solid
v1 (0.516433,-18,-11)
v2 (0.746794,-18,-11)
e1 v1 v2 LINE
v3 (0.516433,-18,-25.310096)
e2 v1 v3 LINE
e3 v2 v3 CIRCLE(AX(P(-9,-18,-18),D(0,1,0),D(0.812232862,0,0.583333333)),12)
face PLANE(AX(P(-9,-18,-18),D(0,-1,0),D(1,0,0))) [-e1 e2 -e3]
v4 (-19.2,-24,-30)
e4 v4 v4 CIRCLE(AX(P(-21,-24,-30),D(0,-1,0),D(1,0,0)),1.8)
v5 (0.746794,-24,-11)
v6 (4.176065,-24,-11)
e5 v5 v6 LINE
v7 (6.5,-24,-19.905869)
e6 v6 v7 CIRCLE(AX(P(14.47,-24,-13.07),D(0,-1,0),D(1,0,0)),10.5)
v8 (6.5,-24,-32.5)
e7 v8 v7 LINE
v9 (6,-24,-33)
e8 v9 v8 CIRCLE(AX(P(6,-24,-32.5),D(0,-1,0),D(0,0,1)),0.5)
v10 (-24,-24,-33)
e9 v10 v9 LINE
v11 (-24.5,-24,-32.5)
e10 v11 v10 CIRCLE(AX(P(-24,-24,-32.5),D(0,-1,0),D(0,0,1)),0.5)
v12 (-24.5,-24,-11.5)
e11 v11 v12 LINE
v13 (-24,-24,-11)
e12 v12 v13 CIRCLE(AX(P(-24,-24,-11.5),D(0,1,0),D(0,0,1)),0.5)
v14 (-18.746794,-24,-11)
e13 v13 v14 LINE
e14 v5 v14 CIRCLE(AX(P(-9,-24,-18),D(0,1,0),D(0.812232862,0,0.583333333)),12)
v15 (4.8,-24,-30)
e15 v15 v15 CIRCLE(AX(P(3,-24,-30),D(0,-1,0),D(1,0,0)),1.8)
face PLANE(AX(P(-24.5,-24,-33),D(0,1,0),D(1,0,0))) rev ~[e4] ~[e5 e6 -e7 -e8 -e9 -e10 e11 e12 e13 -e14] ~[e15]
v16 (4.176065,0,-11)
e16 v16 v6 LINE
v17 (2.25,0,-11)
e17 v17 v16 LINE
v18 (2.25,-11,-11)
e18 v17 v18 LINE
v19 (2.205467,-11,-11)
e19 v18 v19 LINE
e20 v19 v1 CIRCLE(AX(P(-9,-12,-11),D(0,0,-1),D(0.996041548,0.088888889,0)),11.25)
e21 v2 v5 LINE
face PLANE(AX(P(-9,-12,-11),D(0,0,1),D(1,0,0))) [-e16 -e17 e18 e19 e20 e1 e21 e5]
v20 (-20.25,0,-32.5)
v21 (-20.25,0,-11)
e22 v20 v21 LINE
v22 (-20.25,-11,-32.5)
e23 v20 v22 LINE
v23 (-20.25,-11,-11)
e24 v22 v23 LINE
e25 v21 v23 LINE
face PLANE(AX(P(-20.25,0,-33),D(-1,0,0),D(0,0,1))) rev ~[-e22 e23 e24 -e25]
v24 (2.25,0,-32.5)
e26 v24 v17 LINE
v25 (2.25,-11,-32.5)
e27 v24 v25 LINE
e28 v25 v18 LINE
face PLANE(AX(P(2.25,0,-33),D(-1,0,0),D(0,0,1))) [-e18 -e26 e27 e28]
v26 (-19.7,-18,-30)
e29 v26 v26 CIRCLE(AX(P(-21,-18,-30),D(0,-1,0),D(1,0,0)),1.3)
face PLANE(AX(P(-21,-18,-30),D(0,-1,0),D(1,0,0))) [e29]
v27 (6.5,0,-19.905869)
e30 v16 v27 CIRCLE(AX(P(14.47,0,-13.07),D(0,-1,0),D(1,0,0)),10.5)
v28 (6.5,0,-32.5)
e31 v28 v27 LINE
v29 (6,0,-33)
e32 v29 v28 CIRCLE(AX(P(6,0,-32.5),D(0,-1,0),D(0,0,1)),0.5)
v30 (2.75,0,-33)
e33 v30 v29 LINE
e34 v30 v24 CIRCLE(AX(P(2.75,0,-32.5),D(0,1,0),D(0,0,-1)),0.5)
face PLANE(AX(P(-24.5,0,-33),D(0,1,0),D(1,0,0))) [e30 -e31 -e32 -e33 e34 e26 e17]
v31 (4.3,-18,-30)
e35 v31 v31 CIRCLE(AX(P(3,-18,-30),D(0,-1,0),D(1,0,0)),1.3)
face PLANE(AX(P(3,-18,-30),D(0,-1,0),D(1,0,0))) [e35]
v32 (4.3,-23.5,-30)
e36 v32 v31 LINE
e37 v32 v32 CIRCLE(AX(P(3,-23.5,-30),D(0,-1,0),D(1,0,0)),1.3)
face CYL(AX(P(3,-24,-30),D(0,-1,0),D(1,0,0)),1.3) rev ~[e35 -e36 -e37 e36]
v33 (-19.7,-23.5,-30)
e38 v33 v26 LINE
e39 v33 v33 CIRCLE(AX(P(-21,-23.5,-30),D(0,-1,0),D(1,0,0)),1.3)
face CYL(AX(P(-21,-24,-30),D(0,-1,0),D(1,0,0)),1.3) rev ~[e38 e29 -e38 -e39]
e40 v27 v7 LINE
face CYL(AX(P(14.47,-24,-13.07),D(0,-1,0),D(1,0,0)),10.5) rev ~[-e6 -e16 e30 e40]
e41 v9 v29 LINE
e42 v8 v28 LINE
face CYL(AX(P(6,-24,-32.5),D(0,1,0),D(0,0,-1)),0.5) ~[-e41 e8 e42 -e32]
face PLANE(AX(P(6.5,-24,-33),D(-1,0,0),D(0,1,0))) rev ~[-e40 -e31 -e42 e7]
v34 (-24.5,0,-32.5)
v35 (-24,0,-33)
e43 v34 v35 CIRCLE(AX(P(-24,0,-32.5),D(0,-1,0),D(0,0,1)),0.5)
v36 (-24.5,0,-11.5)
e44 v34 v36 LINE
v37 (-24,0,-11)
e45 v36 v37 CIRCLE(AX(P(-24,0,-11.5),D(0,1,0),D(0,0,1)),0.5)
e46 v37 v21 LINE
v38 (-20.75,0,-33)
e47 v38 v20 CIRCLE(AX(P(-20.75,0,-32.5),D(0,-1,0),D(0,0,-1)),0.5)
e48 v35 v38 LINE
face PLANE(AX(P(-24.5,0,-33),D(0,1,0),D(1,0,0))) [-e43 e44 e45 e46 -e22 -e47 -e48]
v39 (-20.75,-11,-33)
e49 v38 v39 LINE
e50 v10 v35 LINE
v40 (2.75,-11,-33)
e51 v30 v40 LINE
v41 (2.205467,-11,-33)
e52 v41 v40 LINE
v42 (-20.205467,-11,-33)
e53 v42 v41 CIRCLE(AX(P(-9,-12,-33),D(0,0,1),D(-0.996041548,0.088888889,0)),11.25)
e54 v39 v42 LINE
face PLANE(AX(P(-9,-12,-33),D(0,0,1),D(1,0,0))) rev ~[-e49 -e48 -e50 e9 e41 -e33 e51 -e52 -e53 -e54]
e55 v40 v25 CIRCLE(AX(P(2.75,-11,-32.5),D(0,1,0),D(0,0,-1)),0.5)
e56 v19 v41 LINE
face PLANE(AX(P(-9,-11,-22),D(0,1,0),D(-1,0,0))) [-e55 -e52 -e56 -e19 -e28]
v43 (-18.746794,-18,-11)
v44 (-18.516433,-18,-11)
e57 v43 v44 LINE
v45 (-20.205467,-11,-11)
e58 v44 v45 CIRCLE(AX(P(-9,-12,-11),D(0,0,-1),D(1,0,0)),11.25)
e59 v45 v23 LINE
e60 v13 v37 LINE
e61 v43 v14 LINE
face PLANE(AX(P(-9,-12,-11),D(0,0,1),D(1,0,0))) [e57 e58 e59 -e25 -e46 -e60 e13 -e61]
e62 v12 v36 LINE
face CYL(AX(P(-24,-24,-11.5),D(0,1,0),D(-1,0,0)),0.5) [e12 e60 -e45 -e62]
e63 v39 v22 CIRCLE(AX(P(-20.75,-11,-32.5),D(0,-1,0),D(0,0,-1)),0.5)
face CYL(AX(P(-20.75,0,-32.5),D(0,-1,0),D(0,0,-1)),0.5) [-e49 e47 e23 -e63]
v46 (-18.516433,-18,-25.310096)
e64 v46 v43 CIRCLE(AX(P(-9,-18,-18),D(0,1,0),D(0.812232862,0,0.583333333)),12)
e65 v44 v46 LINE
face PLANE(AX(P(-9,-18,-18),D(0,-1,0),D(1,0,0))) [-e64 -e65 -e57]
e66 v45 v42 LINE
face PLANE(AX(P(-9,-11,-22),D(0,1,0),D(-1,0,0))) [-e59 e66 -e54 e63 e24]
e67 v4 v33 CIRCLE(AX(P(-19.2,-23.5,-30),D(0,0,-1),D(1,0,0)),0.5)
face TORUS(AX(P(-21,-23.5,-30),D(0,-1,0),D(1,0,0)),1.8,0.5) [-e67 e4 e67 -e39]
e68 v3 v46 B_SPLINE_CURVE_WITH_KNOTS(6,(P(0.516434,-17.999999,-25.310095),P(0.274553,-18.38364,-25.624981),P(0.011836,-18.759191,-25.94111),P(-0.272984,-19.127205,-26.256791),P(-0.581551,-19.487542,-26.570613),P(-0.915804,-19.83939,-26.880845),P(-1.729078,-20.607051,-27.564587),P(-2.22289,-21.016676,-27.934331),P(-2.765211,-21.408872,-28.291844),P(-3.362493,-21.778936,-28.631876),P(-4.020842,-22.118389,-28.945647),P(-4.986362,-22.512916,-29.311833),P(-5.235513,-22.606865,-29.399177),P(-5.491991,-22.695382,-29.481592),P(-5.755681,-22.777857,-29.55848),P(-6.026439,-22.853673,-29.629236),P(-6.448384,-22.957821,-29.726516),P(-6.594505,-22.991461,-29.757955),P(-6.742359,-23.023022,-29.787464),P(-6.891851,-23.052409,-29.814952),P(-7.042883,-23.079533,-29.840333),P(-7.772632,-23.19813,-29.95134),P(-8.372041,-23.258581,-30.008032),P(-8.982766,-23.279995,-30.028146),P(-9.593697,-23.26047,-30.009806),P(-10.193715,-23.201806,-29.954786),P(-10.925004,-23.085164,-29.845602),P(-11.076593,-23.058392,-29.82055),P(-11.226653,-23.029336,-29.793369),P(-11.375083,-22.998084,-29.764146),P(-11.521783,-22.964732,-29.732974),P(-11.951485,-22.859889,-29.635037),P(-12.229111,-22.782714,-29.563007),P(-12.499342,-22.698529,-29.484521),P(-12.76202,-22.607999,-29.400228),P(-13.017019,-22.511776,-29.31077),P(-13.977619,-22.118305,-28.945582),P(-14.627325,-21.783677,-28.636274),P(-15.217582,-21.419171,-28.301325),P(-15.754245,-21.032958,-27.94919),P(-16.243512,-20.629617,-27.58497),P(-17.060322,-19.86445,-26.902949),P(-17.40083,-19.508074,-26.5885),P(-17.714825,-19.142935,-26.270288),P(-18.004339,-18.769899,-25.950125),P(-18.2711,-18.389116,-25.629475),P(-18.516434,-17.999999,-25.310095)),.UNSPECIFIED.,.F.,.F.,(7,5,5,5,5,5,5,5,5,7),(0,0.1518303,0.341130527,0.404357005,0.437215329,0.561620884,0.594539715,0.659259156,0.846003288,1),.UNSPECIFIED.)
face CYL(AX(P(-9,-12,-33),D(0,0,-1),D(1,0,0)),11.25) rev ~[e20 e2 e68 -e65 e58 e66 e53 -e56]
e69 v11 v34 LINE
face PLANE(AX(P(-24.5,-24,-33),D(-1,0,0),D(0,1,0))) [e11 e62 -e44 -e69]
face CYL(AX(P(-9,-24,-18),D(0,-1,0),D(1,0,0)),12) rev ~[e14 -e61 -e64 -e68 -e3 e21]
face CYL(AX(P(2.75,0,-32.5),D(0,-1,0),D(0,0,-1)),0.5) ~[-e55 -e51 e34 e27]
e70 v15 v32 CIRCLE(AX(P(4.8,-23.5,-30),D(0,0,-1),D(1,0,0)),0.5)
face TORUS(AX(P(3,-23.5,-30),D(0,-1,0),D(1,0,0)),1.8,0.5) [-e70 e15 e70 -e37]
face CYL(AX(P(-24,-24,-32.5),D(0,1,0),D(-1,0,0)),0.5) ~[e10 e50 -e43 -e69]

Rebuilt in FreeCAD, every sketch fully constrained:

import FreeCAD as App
import Part
import Sketcher


def edges_at(feature, points):
    """Names of the edges that pass closest to the given points."""
    edges = feature.Shape.Edges
    near = lambda p: min(range(len(edges)), key=lambda i: edges[i].distToShape(Part.Vertex(*p))[0])
    return sorted({f"Edge{near(p) + 1}" for p in points})


def add_polygon(sketch, points):
    """Adds a closed chain of lines whose ends are joined by coincident constraints."""
    first, n = sketch.GeometryCount, len(points)
    for a, b in zip(points, points[1:] + points[:1]):
        sketch.addGeometry(Part.LineSegment(App.Vector(*a, 0), App.Vector(*b, 0)), False)
    for i in range(n):
        sketch.addConstraint(Sketcher.Constraint("Coincident", first + i, 2, first + (i + 1) % n, 1))

doc = App.newDocument("Part")
body = doc.addObject("PartDesign::Body", "Body")

sketch1 = body.newObject("Sketcher::SketchObject", "Sketch")
sketch1.AttachmentSupport = (doc.getObject("XY_Plane"), [""])
sketch1.MapMode = "FlatFace"
add_polygon(sketch1, [(-16, 12), (-16, -12), (16, -12), (16, 12)])
sketch1.addConstraint(Sketcher.Constraint("Vertical", 0))
sketch1.addConstraint(Sketcher.Constraint("Horizontal", 1))
sketch1.addConstraint(Sketcher.Constraint("Vertical", 2))
sketch1.addConstraint(Sketcher.Constraint("Horizontal", 3))
sketch1.addConstraint(Sketcher.Constraint("Symmetric", 0, 2, 2, 2, -1, 1))
sketch1.addConstraint(Sketcher.Constraint("DistanceX", 1, 1, 1, 2, 31.0))
sketch1.addConstraint(Sketcher.Constraint("DistanceY", 0, 2, 0, 1, 24.0))
pad1 = body.newObject("PartDesign::Pad", "Pad")
pad1.Profile = sketch1
pad1.Length = 22

sketch2 = body.newObject("Sketcher::SketchObject", "Sketch001")
sketch2.AttachmentSupport = (doc.getObject("XZ_Plane"), [""])
sketch2.MapMode = "FlatFace"
sketch2.AttachmentOffset = App.Placement(App.Vector(0, 0, 12), App.Rotation())
sketch2.addGeometry(Part.Circle(App.Vector(0, 15, 0), App.Vector(0, 0, 1), 12), False)
sketch2.addGeometry(Part.Circle(App.Vector(-12, 3, 0), App.Vector(0, 0, 1), 1.3), False)
sketch2.addGeometry(Part.Circle(App.Vector(12, 3, 0), App.Vector(0, 0, 1), 1.3), False)
sketch2.addGeometry(Part.Circle(App.Vector(12, 27, 0), App.Vector(0, 0, 1), 1.3), False)
sketch2.addGeometry(Part.Circle(App.Vector(-12, 27, 0), App.Vector(0, 0, 1), 1.3), False)
sketch2.addConstraint(Sketcher.Constraint("Equal", 1, 2))
sketch2.addConstraint(Sketcher.Constraint("Equal", 2, 3))
sketch2.addConstraint(Sketcher.Constraint("Equal", 3, 4))
sketch2.addConstraint(Sketcher.Constraint("Symmetric", 1, 3, 2, 3, -2))
sketch2.addConstraint(Sketcher.Constraint("Symmetric", 3, 3, 4, 3, -2))
sketch2.addConstraint(Sketcher.Constraint("PointOnObject", 0, 3, -2))
sketch2.addConstraint(Sketcher.Constraint("Vertical", 2, 3, 3, 3))
sketch2.addConstraint(Sketcher.Constraint("Diameter", 0, 24.0))
sketch2.addConstraint(Sketcher.Constraint("Diameter", 1, 2.6))
sketch2.addConstraint(Sketcher.Constraint("DistanceY", -1, 1, 0, 3, 15.0))
sketch2.addConstraint(Sketcher.Constraint("DistanceX", 1, 3, -1, 1, 12.0))
sketch2.addConstraint(Sketcher.Constraint("DistanceY", -1, 1, 1, 3, 3.0))
sketch2.addConstraint(Sketcher.Constraint("DistanceY", -1, 1, 3, 3, 27.0))
pocket1 = body.newObject("PartDesign::Pocket", "Pocket")
pocket1.Profile = sketch2
pocket1.Length = 6

sketch3 = body.newObject("Sketcher::SketchObject", "Sketch002")
sketch3.AttachmentSupport = (doc.getObject("XY_Plane"), [""])
sketch3.MapMode = "FlatFace"
sketch3.addGeometry(Part.Circle(App.Vector(0, 0, 0), App.Vector(0, 0, 1), 11), False)
sketch3.addConstraint(Sketcher.Constraint("Coincident", 0, 3, -1, 1))
sketch3.addConstraint(Sketcher.Constraint("Diameter", 0, 22.5))
pocket2 = body.newObject("PartDesign::Pocket", "Pocket001")
pocket2.Profile = sketch3
pocket2.Type = "ThroughAll"
pocket2.Reversed = True

sketch4 = body.newObject("Sketcher::SketchObject", "Sketch003")
sketch4.AttachmentSupport = (doc.getObject("XZ_Plane"), [""])
sketch4.MapMode = "FlatFace"
sketch4.AttachmentOffset = App.Placement(App.Vector(0, 0, -12), App.Rotation())
add_polygon(sketch4, [(11, 22), (11, 0), (-11, 0), (-11, 22)])
sketch4.addConstraint(Sketcher.Constraint("Vertical", 0))
sketch4.addConstraint(Sketcher.Constraint("Horizontal", 1))
sketch4.addConstraint(Sketcher.Constraint("Vertical", 2))
sketch4.addConstraint(Sketcher.Constraint("Horizontal", 3))
sketch4.addConstraint(Sketcher.Constraint("Symmetric", 0, 2, 1, 2, -1, 1))
sketch4.addConstraint(Sketcher.Constraint("DistanceY", 0, 2, 0, 1, 22.0))
sketch4.addConstraint(Sketcher.Constraint("DistanceX", 1, 2, 1, 1, 22.5))
pocket3 = body.newObject("PartDesign::Pocket", "Pocket002")
pocket3.Profile = sketch4
pocket3.Length = 11
pocket3.Reversed = True

sketch5 = body.newObject("Sketcher::SketchObject", "Sketch004")
sketch5.AttachmentSupport = (doc.getObject("XZ_Plane"), [""])
sketch5.MapMode = "FlatFace"
sketch5.AttachmentOffset = App.Placement(App.Vector(0, 0, 12), App.Rotation())
sketch5.addGeometry(Part.Circle(App.Vector(23, 20, 0), App.Vector(0, 0, 1), 10), False)
sketch5.addConstraint(Sketcher.Constraint("Diameter", 0, 21.0))
sketch5.addConstraint(Sketcher.Constraint("DistanceX", -1, 1, 0, 3, 23.47))
sketch5.addConstraint(Sketcher.Constraint("DistanceY", -1, 1, 0, 3, 19.93))
pocket4 = body.newObject("PartDesign::Pocket", "Pocket003")
pocket4.Profile = sketch5
pocket4.Type = "ThroughAll"
doc.recompute()

fillet = body.newObject("PartDesign::Fillet", "Fillet")
fillet.Base = (pocket4, edges_at(pocket4, [
    (-13.3, -12, 3),
    (10.7, -12, 3),
    (-15.5, 0, 0),
    (-15.5, 0, 22),
    (15.5, 0, 0),
    (11.25, 6.5, 0),
    (-11.25, 6.5, 0),
]))
fillet.Radius = 0.5
body2 = doc.addObject("PartDesign::Body", "Body001")
doc.recompute()

body.Placement = App.Placement(App.Vector(-9, -12, -33), App.Rotation(App.Vector(0, 0, 1), 0))
boolean = body2.newObject("PartDesign::Boolean", "Boolean")
boolean.Type = "Fuse"
boolean.addObjects([body])

doc.recompute()
